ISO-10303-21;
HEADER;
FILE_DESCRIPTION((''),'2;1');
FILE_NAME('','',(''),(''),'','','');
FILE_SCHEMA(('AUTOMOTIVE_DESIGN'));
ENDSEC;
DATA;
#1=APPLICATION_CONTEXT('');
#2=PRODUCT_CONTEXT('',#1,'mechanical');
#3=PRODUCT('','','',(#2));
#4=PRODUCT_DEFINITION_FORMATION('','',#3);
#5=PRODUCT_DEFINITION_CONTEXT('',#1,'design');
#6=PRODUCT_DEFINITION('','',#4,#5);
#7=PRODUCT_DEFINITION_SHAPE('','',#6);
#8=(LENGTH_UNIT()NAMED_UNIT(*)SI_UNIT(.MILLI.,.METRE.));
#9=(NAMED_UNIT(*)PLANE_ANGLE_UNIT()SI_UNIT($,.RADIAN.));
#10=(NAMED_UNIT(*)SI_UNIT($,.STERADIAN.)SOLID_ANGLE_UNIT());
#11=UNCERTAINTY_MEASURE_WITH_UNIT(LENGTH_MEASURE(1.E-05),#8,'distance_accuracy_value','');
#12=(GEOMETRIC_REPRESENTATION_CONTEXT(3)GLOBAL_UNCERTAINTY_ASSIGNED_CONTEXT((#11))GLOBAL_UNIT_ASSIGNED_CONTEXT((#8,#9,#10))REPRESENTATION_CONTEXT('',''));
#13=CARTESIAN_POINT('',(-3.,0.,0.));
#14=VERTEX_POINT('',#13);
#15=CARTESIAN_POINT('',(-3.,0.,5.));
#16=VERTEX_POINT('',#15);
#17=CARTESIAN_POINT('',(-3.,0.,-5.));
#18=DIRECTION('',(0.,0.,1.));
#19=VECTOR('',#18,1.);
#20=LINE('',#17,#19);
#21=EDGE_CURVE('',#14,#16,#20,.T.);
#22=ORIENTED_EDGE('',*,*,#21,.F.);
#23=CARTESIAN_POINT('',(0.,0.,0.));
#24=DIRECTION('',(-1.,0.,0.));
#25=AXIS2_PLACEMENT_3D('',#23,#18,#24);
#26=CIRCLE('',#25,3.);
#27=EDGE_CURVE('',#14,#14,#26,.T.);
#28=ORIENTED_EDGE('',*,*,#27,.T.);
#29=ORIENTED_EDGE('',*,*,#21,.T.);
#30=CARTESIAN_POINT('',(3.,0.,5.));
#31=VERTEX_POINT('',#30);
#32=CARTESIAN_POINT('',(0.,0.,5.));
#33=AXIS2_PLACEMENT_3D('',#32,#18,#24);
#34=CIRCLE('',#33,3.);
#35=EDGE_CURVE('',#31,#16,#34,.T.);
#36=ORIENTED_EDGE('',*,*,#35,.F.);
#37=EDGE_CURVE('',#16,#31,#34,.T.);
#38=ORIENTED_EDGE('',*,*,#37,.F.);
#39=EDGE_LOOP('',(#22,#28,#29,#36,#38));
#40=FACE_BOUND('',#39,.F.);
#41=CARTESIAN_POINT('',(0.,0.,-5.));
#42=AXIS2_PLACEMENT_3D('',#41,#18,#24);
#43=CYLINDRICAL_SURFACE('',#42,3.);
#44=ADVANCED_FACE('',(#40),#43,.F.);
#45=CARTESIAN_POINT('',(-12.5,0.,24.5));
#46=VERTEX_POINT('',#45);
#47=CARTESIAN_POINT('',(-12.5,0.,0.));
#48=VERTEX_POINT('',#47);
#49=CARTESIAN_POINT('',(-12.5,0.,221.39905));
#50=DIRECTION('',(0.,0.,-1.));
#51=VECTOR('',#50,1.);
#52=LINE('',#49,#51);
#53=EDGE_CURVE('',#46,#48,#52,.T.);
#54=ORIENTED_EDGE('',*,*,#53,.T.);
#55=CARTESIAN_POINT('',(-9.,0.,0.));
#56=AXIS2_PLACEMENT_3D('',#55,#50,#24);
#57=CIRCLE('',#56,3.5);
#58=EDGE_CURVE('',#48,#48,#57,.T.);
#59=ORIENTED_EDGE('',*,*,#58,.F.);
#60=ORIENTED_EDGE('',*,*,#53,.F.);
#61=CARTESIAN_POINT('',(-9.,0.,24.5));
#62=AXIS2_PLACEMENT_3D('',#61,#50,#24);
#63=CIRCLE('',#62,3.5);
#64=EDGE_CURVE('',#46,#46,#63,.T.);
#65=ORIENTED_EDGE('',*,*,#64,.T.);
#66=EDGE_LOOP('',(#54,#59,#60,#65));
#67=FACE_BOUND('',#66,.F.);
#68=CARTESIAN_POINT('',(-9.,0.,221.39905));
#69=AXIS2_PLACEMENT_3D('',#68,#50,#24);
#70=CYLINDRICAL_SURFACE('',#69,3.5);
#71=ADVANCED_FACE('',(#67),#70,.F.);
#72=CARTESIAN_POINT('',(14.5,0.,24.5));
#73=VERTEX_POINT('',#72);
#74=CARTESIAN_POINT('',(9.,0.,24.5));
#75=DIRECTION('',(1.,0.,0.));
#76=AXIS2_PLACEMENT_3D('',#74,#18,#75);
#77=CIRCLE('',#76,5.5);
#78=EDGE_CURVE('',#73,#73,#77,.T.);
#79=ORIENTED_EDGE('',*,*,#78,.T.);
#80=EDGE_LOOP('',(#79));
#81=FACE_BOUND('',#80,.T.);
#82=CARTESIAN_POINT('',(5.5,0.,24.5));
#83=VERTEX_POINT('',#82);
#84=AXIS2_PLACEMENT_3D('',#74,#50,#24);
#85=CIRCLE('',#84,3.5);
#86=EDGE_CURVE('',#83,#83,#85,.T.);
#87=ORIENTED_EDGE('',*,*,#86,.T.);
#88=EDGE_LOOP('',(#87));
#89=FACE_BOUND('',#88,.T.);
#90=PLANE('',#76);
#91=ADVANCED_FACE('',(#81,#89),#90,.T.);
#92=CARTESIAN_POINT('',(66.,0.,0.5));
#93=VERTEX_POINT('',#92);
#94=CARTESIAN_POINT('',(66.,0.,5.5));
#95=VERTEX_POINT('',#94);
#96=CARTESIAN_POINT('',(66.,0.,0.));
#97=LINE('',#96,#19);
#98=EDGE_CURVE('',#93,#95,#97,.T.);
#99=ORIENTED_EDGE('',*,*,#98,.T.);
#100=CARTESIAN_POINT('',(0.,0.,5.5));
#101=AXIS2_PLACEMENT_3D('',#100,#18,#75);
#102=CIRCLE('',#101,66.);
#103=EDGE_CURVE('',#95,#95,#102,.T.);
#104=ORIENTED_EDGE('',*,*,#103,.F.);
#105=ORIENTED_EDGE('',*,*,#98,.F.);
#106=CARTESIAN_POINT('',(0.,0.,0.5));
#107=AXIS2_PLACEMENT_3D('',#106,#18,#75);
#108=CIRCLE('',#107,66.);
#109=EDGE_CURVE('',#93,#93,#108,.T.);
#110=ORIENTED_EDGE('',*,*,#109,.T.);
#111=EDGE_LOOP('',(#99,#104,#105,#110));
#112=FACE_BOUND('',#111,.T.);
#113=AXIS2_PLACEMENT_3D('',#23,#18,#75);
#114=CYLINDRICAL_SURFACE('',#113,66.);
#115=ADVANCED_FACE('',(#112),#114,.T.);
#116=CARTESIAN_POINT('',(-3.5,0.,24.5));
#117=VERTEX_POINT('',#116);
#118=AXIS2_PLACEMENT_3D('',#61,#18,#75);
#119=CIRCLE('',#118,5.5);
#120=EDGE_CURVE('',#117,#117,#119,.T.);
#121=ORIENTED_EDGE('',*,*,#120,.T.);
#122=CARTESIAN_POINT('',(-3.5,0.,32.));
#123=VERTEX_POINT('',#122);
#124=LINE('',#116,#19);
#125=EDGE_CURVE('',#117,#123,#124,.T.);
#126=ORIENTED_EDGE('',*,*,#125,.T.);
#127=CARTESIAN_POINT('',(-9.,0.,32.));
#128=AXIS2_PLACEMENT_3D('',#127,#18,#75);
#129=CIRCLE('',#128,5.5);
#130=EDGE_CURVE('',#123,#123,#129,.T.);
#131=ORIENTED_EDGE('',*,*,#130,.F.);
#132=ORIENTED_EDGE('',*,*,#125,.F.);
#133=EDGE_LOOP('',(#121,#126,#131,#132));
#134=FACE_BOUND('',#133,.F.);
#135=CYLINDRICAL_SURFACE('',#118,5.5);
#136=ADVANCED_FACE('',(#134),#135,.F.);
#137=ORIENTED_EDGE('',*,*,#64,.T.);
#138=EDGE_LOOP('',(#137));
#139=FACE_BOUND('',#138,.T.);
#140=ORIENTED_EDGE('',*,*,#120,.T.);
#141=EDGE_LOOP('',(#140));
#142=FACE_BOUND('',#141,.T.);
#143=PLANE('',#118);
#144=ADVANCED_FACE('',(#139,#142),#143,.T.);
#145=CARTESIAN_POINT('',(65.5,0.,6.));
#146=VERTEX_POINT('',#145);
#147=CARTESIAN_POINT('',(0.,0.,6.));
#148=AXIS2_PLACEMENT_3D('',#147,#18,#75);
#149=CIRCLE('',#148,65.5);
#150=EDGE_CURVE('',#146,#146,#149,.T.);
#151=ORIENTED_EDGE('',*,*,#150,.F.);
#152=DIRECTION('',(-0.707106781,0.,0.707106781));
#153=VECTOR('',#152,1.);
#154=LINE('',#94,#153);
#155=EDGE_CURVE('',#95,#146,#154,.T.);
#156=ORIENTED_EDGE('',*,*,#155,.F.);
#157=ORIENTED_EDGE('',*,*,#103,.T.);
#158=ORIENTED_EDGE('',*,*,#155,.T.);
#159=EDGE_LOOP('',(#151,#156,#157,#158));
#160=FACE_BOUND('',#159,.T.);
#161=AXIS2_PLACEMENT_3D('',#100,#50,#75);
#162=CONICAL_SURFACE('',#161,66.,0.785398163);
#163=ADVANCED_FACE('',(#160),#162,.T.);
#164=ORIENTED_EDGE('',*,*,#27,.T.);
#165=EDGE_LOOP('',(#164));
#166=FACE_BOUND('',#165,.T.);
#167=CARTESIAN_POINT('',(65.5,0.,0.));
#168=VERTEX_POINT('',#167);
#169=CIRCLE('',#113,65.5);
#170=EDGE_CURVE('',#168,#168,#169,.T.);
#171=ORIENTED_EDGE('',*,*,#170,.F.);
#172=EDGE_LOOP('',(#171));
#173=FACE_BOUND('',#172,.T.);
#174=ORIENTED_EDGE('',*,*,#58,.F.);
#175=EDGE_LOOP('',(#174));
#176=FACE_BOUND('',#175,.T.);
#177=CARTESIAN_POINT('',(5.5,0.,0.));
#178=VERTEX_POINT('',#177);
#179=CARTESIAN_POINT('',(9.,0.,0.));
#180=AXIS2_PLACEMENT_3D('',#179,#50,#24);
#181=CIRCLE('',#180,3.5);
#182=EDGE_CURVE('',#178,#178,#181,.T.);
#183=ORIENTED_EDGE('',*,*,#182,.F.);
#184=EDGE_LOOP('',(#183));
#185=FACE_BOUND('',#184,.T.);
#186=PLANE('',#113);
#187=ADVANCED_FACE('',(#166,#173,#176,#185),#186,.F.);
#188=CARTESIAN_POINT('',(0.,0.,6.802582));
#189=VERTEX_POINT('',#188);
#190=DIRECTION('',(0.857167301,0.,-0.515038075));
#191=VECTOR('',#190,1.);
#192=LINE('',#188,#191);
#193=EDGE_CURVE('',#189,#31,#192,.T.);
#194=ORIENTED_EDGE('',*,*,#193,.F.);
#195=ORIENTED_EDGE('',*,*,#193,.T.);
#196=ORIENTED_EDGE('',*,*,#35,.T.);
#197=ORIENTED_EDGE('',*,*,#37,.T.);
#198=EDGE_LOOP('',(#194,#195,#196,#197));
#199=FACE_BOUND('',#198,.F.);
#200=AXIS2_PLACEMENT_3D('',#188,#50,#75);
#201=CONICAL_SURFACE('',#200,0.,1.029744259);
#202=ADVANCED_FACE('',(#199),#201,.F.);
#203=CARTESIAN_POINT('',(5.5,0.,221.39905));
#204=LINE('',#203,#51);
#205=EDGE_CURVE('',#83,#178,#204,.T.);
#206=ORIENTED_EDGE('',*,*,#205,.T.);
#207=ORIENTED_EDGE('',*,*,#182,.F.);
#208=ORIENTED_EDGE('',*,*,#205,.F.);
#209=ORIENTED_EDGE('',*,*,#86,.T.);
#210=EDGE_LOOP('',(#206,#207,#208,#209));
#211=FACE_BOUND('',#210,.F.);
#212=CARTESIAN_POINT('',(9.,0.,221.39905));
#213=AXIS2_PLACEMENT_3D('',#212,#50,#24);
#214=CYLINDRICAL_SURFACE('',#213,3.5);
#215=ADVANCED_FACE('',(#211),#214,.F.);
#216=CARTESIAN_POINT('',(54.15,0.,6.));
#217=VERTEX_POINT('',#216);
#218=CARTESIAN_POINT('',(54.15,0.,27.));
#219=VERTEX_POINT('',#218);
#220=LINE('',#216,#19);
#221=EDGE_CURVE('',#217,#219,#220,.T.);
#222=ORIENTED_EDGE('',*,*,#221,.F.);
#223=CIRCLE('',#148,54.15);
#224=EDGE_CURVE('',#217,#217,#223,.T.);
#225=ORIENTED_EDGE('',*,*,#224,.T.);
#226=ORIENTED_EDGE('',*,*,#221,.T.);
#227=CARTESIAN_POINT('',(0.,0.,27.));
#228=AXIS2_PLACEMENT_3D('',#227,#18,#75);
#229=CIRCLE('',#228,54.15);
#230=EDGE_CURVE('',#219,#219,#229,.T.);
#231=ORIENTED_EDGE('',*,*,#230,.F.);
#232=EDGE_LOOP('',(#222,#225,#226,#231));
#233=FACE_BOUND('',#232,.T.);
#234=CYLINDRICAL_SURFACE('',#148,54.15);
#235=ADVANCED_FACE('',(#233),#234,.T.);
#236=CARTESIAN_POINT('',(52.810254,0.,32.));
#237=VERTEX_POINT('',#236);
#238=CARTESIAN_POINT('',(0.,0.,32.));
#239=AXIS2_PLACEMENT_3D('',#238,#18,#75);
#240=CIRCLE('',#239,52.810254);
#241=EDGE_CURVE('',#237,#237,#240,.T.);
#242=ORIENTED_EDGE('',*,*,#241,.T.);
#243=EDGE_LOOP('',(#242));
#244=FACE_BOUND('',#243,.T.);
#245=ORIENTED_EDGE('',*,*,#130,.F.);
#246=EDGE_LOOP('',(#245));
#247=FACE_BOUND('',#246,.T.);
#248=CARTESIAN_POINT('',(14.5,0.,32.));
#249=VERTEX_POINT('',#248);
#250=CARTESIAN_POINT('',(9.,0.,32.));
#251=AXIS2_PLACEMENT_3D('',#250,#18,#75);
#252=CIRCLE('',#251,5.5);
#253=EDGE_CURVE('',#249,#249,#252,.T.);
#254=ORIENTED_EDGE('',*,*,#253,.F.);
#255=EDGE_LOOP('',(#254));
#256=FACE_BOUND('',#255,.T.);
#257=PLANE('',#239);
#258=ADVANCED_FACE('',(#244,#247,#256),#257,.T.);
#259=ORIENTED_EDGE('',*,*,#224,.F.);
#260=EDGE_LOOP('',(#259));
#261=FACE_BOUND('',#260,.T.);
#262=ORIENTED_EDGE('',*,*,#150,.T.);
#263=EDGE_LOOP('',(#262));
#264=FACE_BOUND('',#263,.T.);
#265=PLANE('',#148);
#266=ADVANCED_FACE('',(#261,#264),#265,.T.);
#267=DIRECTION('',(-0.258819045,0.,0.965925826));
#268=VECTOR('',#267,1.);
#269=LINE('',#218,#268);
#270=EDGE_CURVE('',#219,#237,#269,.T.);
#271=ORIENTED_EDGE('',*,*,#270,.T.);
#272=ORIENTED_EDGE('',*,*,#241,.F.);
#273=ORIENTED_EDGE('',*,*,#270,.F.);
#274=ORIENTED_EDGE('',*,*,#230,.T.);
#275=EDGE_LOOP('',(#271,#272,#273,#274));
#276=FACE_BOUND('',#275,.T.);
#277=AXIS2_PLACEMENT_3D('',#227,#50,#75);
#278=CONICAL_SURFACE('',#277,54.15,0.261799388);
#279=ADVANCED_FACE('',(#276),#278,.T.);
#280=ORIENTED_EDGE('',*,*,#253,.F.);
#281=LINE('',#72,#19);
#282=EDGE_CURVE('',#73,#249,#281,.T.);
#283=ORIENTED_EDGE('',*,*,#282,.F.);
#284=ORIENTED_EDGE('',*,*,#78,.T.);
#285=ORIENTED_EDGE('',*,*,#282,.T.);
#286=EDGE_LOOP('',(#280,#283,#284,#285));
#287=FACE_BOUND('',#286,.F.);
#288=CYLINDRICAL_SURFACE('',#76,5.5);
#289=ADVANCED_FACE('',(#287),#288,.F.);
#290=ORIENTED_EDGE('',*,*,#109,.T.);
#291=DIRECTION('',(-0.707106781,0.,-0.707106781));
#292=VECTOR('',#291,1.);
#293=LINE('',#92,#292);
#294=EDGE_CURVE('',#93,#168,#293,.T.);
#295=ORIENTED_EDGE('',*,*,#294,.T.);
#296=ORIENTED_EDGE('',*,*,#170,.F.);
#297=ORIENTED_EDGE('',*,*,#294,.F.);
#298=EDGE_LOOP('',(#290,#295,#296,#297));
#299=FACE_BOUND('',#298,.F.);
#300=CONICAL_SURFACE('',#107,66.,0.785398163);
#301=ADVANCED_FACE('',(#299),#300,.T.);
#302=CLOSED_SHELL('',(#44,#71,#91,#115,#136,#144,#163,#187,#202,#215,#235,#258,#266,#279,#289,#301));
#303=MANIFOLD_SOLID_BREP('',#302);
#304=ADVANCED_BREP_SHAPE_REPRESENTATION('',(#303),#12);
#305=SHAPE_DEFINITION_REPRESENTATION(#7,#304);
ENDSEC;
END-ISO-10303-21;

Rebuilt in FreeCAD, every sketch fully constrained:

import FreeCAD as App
import Part
import Sketcher
from FreeCAD import Vector


def edges_at(feature, points):
    """Names of the edges that pass closest to the given points."""
    edges = feature.Shape.Edges
    near = lambda p: min(range(len(edges)), key=lambda i: edges[i].distToShape(Part.Vertex(*p))[0])
    return sorted({f"Edge{near(p) + 1}" for p in points})


def add_polygon(sketch, points):
    """Adds a closed chain of lines whose ends are joined by coincident constraints."""
    first, n = sketch.GeometryCount, len(points)
    for a, b in zip(points, points[1:] + points[:1]):
        sketch.addGeometry(Part.LineSegment(App.Vector(*a, 0), App.Vector(*b, 0)), False)
    for i in range(n):
        sketch.addConstraint(Sketcher.Constraint("Coincident", first + i, 2, first + (i + 1) % n, 1))

doc = App.newDocument("Part")
body = doc.addObject("PartDesign::Body", "Body")

# Sketch on XZ plane
sketch1 = body.newObject("Sketcher::SketchObject", "Sketch")
sketch1.AttachmentSupport = (doc.getObject("XZ_Plane"), [""])
sketch1.MapMode = "FlatFace"
add_polygon(sketch1, [(0, 32), (0, 0), (66, 0), (66, 6), (54, 6), (54, 32)])  # lines 0-5
sketch1.addConstraint(Sketcher.Constraint("Vertical", 0))
sketch1.addConstraint(Sketcher.Constraint("Horizontal", 1))
sketch1.addConstraint(Sketcher.Constraint("Vertical", 2))
sketch1.addConstraint(Sketcher.Constraint("Horizontal", 3))
sketch1.addConstraint(Sketcher.Constraint("Vertical", 4))
sketch1.addConstraint(Sketcher.Constraint("Horizontal", 5))
sketch1.addConstraint(Sketcher.Constraint("Coincident", 0, 2, -1, 1))
sketch1.addConstraint(Sketcher.Constraint("DistanceX", 1, 1, 1, 2, 66.0))
sketch1.addConstraint(Sketcher.Constraint("DistanceY", 0, 2, 0, 1, 32.0))
sketch1.addConstraint(Sketcher.Constraint("DistanceY", 2, 1, 2, 2, 6.0))
sketch1.addConstraint(Sketcher.Constraint("DistanceX", 3, 2, 3, 1, 11.85))
revolution = body.newObject("PartDesign::Revolution", "Revolution")
revolution.Profile = sketch1
revolution.ReferenceAxis = (sketch1, ["V_Axis"])
revolution.Angle = 360
doc.recompute()

chamfer = body.newObject("PartDesign::Chamfer", "Chamfer")
chamfer.Base = (revolution, edges_at(revolution, [(-66, 0, 6)]))
chamfer.Size = 0.5
doc.recompute()

chamfer2 = body.newObject("PartDesign::Chamfer", "Chamfer001")
chamfer2.Base = (chamfer, edges_at(chamfer, [(-66, 0, 0)]))
chamfer2.Size = 0.5
doc.recompute()

chamfer3 = body.newObject("PartDesign::Chamfer", "Chamfer002")
chamfer3.Base = (chamfer2, edges_at(chamfer2, [(-54.15, 0, 32)]))
chamfer3.ChamferType = "Two distances"
chamfer3.Size = 5
chamfer3.Size2 = 1.339746

# Sketch on XY plane
sketch2 = body.newObject("Sketcher::SketchObject", "Sketch001")
sketch2.AttachmentSupport = (doc.getObject("XY_Plane"), [""])
sketch2.MapMode = "FlatFace"
sketch2.AttachmentOffset = App.Placement(Vector(0, 0, 32), App.Rotation())
sketch2.addGeometry(Part.Circle(Vector(-9, 0, 0), Vector(0, 0, 1), 3.5), False)
sketch2.addGeometry(Part.Circle(Vector(9, 0, 0), Vector(0, 0, 1), 3.5), False)
sketch2.addConstraint(Sketcher.Constraint("Equal", 0, 1))
sketch2.addConstraint(Sketcher.Constraint("Symmetric", 0, 3, 1, 3, -1, 1))
sketch2.addConstraint(Sketcher.Constraint("PointOnObject", 0, 3, -1))
sketch2.addConstraint(Sketcher.Constraint("Diameter", 0, 7.0))
sketch2.addConstraint(Sketcher.Constraint("DistanceX", 0, 3, -1, 1, 9.0))
doc.recompute()
hole = body.newObject("PartDesign::Hole", "Hole")
hole.Profile = sketch2
hole.ThreadType = "None"
hole.Diameter = 7
hole.DepthType = "ThroughAll"

# Sketch on XY plane
sketch3 = body.newObject("Sketcher::SketchObject", "Sketch002")
sketch3.AttachmentSupport = (doc.getObject("XY_Plane"), [""])
sketch3.MapMode = "FlatFace"
sketch3.AttachmentOffset = App.Placement(Vector(0, 0, 32), App.Rotation())
sketch3.addGeometry(Part.Circle(Vector(9, 0, 0), Vector(0, 0, 1), 3.5), False)
sketch3.addGeometry(Part.Circle(Vector(-9, 0, 0), Vector(0, 0, 1), 3.5), False)
sketch3.addConstraint(Sketcher.Constraint("Equal", 0, 1))
sketch3.addConstraint(Sketcher.Constraint("Symmetric", 0, 3, 1, 3, -1, 1))
sketch3.addConstraint(Sketcher.Constraint("PointOnObject", 0, 3, -1))
sketch3.addConstraint(Sketcher.Constraint("Diameter", 0, 7.0))
sketch3.addConstraint(Sketcher.Constraint("DistanceX", -1, 1, 0, 3, 9.0))
doc.recompute()
hole2 = body.newObject("PartDesign::Hole", "Hole001")
hole2.Profile = sketch3
hole2.ThreadType = "None"
hole2.Diameter = 7
hole2.DepthType = "ThroughAll"
hole2.HoleCutType = "Counterbore"
hole2.HoleCutDiameter = 11
hole2.HoleCutDepth = 7.5

# Sketch on XY plane
sketch4 = body.newObject("Sketcher::SketchObject", "Sketch003")
sketch4.AttachmentSupport = (doc.getObject("XY_Plane"), [""])
sketch4.MapMode = "FlatFace"
sketch4.addGeometry(Part.Circle(Vector(0, 0, 0), Vector(0, 0, 1), 3), False)
sketch4.addConstraint(Sketcher.Constraint("Coincident", 0, 3, -1, 1))
sketch4.addConstraint(Sketcher.Constraint("Diameter", 0, 6.0))
doc.recompute()
hole3 = body.newObject("PartDesign::Hole", "Hole002")
hole3.Profile = sketch4
hole3.ThreadType = "None"
hole3.Diameter = 6
hole3.DepthType = "Dimension"
hole3.Depth = 5
hole3.DrillPoint = "Angled"
hole3.DrillPointAngle = 118
hole3.Reversed = True

doc.recompute()
